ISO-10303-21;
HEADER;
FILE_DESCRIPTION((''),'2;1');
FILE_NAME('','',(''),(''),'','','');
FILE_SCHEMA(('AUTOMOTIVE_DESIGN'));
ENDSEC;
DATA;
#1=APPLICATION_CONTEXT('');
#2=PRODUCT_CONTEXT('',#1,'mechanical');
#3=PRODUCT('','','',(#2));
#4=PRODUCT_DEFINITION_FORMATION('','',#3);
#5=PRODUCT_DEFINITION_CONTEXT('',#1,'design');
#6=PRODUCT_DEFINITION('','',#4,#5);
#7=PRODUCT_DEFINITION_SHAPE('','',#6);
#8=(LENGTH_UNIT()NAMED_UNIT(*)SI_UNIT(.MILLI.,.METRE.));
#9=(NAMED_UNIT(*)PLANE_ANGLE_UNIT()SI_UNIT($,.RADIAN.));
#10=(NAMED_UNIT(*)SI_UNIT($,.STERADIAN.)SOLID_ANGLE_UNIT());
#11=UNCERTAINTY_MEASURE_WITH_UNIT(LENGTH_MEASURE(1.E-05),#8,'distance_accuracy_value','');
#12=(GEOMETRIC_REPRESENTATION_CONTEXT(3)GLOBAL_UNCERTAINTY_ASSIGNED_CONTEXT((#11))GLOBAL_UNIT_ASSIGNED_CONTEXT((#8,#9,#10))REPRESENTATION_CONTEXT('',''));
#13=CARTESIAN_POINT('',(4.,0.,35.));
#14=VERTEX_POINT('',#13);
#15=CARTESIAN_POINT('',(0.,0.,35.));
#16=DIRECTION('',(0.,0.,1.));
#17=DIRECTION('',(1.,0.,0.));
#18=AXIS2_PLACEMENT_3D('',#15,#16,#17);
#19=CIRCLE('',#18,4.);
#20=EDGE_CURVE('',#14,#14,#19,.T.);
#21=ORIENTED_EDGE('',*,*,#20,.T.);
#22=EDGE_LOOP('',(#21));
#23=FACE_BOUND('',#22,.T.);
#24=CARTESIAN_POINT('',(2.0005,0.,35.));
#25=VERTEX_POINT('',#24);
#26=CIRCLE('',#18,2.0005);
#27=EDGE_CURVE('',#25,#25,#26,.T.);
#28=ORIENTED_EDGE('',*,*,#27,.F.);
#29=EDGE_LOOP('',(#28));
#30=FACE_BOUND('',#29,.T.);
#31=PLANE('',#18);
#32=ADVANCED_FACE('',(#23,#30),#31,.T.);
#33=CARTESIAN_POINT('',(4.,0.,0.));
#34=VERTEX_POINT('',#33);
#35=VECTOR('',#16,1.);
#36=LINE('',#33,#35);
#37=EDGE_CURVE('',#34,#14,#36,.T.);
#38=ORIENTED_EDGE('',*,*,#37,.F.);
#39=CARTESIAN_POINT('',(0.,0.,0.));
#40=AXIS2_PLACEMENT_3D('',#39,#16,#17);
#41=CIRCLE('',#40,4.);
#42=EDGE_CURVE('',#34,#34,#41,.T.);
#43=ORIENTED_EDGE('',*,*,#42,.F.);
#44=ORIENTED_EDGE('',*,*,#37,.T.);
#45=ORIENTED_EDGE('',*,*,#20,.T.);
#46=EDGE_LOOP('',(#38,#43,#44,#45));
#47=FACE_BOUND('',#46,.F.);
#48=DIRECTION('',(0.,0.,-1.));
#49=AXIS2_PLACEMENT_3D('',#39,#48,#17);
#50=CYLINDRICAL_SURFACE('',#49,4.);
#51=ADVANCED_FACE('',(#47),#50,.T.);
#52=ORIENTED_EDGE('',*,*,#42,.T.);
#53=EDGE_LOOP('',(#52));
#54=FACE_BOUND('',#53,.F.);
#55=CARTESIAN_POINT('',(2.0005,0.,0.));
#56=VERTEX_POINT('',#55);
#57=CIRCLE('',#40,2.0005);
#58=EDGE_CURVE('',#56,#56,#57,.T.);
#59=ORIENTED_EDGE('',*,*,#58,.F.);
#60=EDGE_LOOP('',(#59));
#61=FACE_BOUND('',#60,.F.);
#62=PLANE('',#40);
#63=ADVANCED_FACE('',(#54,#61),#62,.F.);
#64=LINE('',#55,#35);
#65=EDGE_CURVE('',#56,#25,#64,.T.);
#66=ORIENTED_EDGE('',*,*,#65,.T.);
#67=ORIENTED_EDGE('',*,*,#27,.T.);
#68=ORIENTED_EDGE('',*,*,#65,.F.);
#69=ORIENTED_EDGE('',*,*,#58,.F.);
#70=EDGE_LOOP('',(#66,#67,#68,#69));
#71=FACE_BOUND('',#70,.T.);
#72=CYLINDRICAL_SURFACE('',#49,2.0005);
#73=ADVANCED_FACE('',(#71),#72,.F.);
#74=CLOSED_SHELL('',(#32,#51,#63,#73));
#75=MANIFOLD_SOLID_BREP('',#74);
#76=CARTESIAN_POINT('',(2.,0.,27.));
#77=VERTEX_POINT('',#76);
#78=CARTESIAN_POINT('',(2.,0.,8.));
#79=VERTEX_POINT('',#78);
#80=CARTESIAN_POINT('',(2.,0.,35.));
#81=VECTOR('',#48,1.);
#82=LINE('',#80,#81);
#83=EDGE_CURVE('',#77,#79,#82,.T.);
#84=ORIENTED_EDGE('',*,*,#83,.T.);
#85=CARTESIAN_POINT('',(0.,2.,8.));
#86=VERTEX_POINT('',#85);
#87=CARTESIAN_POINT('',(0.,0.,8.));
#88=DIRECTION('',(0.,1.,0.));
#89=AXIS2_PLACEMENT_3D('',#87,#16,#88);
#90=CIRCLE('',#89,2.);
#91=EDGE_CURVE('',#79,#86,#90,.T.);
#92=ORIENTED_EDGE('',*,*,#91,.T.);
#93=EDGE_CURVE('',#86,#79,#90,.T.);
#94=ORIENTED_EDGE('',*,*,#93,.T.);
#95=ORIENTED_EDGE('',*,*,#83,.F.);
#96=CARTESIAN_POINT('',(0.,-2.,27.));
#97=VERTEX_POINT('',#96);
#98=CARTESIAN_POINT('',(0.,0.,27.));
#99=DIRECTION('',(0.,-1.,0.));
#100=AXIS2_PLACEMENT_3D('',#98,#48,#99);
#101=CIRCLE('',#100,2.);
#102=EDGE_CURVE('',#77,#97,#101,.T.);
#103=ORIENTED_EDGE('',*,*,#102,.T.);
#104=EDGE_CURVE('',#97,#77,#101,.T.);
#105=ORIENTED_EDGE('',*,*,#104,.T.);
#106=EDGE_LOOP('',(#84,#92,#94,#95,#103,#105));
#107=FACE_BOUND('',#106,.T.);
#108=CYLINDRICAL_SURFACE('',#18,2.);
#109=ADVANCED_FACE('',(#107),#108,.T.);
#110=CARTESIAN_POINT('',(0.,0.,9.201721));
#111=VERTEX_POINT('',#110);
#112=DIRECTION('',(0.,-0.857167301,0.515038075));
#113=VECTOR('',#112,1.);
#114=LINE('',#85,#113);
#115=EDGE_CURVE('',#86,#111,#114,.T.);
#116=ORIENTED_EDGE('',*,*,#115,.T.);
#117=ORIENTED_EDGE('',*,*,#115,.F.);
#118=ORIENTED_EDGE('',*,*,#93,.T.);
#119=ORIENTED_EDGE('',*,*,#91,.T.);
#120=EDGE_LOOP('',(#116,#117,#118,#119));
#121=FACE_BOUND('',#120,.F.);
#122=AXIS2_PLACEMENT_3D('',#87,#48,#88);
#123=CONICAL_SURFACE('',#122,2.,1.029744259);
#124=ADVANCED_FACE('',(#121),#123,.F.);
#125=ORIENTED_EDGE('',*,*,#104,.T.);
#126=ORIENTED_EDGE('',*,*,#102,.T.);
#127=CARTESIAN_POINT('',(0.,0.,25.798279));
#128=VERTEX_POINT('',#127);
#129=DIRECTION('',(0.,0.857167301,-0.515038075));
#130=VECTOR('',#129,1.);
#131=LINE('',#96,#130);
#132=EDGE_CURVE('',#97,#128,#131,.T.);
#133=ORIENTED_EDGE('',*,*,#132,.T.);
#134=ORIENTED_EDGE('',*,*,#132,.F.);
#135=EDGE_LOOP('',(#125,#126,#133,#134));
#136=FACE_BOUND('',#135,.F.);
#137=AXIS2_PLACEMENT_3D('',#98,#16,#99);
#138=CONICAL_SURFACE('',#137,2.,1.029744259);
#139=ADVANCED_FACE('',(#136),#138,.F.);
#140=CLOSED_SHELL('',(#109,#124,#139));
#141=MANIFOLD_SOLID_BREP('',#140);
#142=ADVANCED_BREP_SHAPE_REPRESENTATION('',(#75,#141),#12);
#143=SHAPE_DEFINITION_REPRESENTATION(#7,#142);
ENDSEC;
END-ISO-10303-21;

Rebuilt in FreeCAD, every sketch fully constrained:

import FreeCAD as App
import Part
import Sketcher
from FreeCAD import Vector
Q = App.Units.Quantity

doc = App.newDocument("Part")
params = doc.addObject("Spreadsheet::Sheet", "Params")
for row, (alias, value) in enumerate([
    ("sketch1_diameter", "8 mm"),
    ("pad1_length", "35 mm"),
    ("sketch2_diameter", "4 mm"),
    ("pad2_length", "35 mm"),
    ("sketch3_diameter", "4 mm"),
    ("hole_diameter", "4 mm"),
    ("hole_depth", "8 mm"),
    ("sketch4_diameter", "4 mm"),
    ("hole2_diameter", "4 mm"),
    ("hole2_depth", "8 mm"),
], start=1):
    params.set(f"A{row}", alias)
    params.set(f"B{row}", "=" + value)
    params.setAlias(f"B{row}", alias)

body = doc.addObject("PartDesign::Body", "Body")
body.AllowCompound = True

sketch1 = body.newObject("Sketcher::SketchObject", "Sketch")
sketch1.AttachmentSupport = (doc.getObject("XY_Plane"), [""])
sketch1.MapMode = "FlatFace"
sketch1.addGeometry([
    Part.Circle(Vector(0, 0, 0), Vector(0, 0, 1), 4),
    Part.Circle(Vector(0, 0, 0), Vector(0, 0, 1), 2),
], False)
sketch1.addConstraint([
    Sketcher.Constraint("Coincident", 0, 3, -1, 1),
    Sketcher.Constraint("Coincident", 1, 3, -1, 1),
    Sketcher.Constraint("Diameter", 0, Q("8 mm")),
    Sketcher.Constraint("Diameter", 1, Q("4.001 mm")),
])
sketch1.setExpression("Constraints[2]", "Params.sketch1_diameter")
pad1 = body.newObject("PartDesign::Pad", "Pad")
pad1.Profile = sketch1
pad1.setExpression("Length", "Params.pad1_length")

sketch2 = body.newObject("Sketcher::SketchObject", "Sketch001")
sketch2.AttachmentSupport = (doc.getObject("XY_Plane"), [""])
sketch2.MapMode = "FlatFace"
sketch2.AttachmentOffset = App.Placement(Vector(0, 0, 35), App.Rotation())
sketch2.addGeometry(Part.Circle(Vector(0, 0, 0), Vector(0, 0, 1), 2), False)
sketch2.addConstraint([
    Sketcher.Constraint("Coincident", 0, 3, -1, 1),
    Sketcher.Constraint("Diameter", 0, Q("4 mm")),
])
sketch2.setExpression("Constraints[1]", "Params.sketch2_diameter")
pad2 = body.newObject("PartDesign::Pad", "Pad001")
pad2.Profile = sketch2
pad2.setExpression("Length", "Params.pad2_length")
pad2.Reversed = True

sketch3 = body.newObject("Sketcher::SketchObject", "Sketch002")
sketch3.AttachmentSupport = (doc.getObject("XY_Plane"), [""])
sketch3.MapMode = "FlatFace"
sketch3.AttachmentOffset = App.Placement(Vector(0, 0, 35), App.Rotation())
sketch3.addGeometry(Part.Circle(Vector(0, 0, 0), Vector(0, 0, 1), 2), False)
sketch3.addConstraint([
    Sketcher.Constraint("Coincident", 0, 3, -1, 1),
    Sketcher.Constraint("Diameter", 0, Q("4 mm")),
])
sketch3.setExpression("Constraints[1]", "Params.sketch3_diameter")
doc.recompute()
hole = body.newObject("PartDesign::Hole", "Hole")
hole.Profile = sketch3
hole.ThreadType = "None"
hole.setExpression("Diameter", "Params.hole_diameter")
hole.DepthType = "Dimension"
hole.setExpression("Depth", "Params.hole_depth")
hole.DrillPoint = "Angled"
hole.DrillPointAngle = 118

sketch4 = body.newObject("Sketcher::SketchObject", "Sketch003")
sketch4.AttachmentSupport = (doc.getObject("XY_Plane"), [""])
sketch4.MapMode = "FlatFace"
sketch4.addGeometry(Part.Circle(Vector(0, 0, 0), Vector(0, 0, 1), 2), False)
sketch4.addConstraint([
    Sketcher.Constraint("Coincident", 0, 3, -1, 1),
    Sketcher.Constraint("Diameter", 0, Q("4 mm")),
])
sketch4.setExpression("Constraints[1]", "Params.sketch4_diameter")
doc.recompute()
hole2 = body.newObject("PartDesign::Hole", "Hole001")
hole2.Profile = sketch4
hole2.ThreadType = "None"
hole2.setExpression("Diameter", "Params.hole2_diameter")
hole2.DepthType = "Dimension"
hole2.setExpression("Depth", "Params.hole2_depth")
hole2.DrillPoint = "Angled"
hole2.DrillPointAngle = 118
hole2.Reversed = True

doc.recompute()
